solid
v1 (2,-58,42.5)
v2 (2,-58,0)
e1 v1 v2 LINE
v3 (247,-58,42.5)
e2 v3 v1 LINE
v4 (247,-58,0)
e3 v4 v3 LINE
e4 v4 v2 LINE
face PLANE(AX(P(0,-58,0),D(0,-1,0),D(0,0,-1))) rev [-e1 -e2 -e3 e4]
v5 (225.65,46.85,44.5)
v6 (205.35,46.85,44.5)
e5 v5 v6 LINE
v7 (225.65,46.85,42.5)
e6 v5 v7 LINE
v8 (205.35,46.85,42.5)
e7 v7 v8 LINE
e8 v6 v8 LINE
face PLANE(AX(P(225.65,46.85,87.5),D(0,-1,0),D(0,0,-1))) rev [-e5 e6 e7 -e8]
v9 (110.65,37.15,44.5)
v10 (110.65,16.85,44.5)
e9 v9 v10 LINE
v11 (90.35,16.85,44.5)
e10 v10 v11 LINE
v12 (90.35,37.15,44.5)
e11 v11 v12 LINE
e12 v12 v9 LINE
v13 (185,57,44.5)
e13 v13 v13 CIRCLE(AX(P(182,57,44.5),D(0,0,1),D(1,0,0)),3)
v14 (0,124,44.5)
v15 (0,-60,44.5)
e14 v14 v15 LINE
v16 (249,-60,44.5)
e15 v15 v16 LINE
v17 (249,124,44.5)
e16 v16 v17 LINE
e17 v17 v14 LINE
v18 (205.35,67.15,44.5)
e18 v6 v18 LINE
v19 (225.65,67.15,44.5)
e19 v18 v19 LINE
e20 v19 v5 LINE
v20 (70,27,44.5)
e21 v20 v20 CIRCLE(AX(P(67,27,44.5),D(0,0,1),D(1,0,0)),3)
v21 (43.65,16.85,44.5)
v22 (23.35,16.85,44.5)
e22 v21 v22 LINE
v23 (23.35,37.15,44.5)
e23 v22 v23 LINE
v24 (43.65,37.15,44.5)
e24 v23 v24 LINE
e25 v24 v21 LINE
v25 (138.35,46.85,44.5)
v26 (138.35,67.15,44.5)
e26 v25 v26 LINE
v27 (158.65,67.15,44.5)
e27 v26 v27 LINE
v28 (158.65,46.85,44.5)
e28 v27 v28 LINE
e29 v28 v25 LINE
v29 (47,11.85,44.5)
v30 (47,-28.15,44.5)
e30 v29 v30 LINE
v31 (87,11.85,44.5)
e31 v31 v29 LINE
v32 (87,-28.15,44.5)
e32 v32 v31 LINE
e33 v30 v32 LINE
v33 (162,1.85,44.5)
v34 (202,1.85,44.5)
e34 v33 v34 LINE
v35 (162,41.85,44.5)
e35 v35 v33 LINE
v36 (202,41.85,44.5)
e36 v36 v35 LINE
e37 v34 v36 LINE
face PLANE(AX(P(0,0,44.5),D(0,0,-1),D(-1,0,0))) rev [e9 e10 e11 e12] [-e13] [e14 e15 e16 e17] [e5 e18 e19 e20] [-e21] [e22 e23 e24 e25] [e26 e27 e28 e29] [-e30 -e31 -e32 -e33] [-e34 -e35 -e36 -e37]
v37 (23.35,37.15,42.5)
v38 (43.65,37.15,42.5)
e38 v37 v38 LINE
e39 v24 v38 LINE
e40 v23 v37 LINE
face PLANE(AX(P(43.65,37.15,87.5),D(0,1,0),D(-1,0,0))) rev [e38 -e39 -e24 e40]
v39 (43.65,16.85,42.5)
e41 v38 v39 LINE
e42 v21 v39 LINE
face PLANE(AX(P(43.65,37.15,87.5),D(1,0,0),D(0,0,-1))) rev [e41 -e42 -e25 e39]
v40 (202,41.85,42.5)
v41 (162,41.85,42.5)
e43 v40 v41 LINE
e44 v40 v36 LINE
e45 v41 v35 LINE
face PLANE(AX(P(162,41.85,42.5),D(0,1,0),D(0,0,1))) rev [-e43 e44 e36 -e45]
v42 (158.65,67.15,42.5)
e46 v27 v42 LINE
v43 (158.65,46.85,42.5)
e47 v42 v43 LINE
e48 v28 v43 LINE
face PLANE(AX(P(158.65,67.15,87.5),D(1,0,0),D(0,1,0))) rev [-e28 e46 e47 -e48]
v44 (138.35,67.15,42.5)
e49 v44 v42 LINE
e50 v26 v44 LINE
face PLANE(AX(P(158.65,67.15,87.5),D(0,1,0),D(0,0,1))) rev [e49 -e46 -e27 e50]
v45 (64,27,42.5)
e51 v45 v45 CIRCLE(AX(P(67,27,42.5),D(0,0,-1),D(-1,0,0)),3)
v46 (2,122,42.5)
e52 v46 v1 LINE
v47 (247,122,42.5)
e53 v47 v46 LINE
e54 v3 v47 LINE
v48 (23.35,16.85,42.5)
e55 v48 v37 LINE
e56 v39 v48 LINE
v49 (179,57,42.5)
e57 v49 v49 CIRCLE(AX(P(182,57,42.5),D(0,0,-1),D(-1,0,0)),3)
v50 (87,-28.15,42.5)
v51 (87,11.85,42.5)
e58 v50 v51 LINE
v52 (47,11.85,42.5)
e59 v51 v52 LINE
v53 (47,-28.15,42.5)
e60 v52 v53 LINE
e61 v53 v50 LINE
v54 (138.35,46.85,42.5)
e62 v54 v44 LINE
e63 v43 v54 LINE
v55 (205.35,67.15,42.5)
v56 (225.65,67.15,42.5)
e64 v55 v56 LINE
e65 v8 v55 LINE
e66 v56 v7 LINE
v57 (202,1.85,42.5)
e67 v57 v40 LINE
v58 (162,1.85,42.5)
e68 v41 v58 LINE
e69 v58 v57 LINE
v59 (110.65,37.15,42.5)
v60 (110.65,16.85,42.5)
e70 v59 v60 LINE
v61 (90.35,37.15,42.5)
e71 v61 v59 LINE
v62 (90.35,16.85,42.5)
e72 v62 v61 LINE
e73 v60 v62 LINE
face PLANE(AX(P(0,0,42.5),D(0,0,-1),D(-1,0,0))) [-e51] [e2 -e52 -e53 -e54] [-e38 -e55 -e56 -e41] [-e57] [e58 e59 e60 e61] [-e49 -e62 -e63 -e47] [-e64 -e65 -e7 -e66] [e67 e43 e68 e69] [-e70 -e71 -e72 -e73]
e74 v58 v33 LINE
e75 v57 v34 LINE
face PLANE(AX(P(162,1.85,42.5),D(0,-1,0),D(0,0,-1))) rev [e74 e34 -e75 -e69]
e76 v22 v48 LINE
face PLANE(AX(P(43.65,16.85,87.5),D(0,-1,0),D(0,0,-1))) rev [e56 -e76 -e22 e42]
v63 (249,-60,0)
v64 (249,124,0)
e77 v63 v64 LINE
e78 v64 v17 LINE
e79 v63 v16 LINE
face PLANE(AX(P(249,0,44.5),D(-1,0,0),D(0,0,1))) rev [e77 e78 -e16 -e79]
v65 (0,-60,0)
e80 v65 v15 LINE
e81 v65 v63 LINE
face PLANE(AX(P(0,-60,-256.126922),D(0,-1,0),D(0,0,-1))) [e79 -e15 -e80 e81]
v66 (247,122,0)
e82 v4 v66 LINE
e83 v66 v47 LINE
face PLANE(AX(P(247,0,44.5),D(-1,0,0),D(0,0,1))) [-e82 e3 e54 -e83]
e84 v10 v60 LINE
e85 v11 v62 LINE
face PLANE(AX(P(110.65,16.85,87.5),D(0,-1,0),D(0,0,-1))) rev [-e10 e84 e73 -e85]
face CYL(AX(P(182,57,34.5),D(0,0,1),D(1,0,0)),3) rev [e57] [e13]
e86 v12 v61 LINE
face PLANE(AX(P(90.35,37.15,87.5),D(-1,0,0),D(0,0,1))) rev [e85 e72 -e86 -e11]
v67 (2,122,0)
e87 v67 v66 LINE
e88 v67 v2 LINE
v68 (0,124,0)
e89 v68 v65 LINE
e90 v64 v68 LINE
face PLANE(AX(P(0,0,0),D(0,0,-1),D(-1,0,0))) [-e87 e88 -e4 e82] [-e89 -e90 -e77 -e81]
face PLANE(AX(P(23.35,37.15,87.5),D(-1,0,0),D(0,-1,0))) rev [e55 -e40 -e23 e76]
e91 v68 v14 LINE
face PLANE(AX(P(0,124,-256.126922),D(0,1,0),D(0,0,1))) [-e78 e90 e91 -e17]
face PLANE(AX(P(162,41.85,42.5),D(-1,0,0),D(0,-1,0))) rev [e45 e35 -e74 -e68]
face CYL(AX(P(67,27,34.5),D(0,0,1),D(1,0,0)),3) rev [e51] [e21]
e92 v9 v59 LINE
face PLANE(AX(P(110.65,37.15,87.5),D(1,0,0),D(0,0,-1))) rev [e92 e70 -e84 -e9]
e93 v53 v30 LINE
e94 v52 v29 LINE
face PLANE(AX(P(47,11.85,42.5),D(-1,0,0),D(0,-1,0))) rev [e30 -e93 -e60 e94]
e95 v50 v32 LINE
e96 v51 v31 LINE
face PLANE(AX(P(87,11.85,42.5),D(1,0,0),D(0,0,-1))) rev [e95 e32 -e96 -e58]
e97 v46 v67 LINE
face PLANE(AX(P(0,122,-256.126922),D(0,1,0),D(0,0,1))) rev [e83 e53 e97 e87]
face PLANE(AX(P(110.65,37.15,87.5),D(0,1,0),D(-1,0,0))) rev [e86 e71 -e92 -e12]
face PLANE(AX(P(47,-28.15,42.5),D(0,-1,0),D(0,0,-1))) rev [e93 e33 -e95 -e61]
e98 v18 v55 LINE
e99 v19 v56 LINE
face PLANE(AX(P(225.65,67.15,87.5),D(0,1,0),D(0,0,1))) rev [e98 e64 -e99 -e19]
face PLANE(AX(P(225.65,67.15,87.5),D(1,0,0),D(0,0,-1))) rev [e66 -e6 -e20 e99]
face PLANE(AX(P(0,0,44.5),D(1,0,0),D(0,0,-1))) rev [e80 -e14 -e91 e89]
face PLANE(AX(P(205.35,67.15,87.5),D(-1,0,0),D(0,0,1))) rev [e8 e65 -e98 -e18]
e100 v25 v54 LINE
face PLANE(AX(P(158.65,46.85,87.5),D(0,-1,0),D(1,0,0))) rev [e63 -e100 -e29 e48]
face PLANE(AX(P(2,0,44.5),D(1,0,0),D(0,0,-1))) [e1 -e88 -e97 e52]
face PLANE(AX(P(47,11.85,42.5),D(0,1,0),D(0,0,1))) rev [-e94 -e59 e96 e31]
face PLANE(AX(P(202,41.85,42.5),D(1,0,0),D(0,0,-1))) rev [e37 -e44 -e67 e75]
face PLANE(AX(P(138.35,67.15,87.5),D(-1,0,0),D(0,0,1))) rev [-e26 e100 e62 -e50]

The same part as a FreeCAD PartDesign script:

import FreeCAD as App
import Part
import Sketcher

V = App.Vector
Q = App.Units.Quantity


def faces_at(feature, points):
    """Names of the faces that lie closest to the given points."""
    faces = feature.Shape.Faces
    near = lambda p: min(range(len(faces)), key=lambda i: faces[i].distToShape(Part.Vertex(*p))[0])
    return sorted({f"Face{near(p) + 1}" for p in points})

doc = App.newDocument("Part")
body = doc.addObject("PartDesign::Body", "Body")

sketch1 = body.newObject("Sketcher::SketchObject", "Sketch")
sketch1.AttachmentSupport = (doc.getObject("XY_Plane"), [""])
sketch1.MapMode = "FlatFace"
sketch1.addGeometry([
    Part.LineSegment(V(0, 84, 0), V(0, 0, 0)),
    Part.LineSegment(V(0, 0, 0), V(249, 0, 0)),
    Part.LineSegment(V(249, 0, 0), V(249, 84, 0)),
    Part.LineSegment(V(249, 84, 0), V(0, 84, 0)),
], False)
sketch1.addConstraint([
    Sketcher.Constraint("Coincident", 0, 2, 1, 1),
    Sketcher.Constraint("Coincident", 1, 2, 2, 1),
    Sketcher.Constraint("Coincident", 2, 2, 3, 1),
    Sketcher.Constraint("Coincident", 3, 2, 0, 1),
    Sketcher.Constraint("Vertical", 0),
    Sketcher.Constraint("Horizontal", 1),
    Sketcher.Constraint("Vertical", 2),
    Sketcher.Constraint("Horizontal", 3),
    Sketcher.Constraint("Coincident", 0, 2, -1, 1),
    Sketcher.Constraint("DistanceX", 1, 1, 1, 2, Q("249 mm")),
    Sketcher.Constraint("DistanceY", 0, 2, 0, 1, Q("84 mm")),
])
pad1 = body.newObject("PartDesign::Pad", "Pad")
pad1.Profile = sketch1
pad1.Length = 44.5
doc.recompute()

thickness = body.newObject("PartDesign::Thickness", "Thickness")
thickness.Base = (pad1, faces_at(pad1, [(124.5, 42, 0)]))
thickness.Value = 2
thickness.Reversed = True
thickness.Join = "Intersection"

sketch2 = body.newObject("Sketcher::SketchObject", "Sketch001")
sketch2.AttachmentSupport = (doc.getObject("XY_Plane"), [""])
sketch2.MapMode = "FlatFace"
sketch2.AttachmentOffset = App.Placement(V(0, 0, 42.5), App.Rotation())
sketch2.addGeometry([
    Part.LineSegment(V(110.65, 37.15, 0), V(110.65, 16.85, 0)),
    Part.LineSegment(V(110.65, 16.85, 0), V(90.35, 16.85, 0)),
    Part.LineSegment(V(90.35, 16.85, 0), V(90.35, 37.15, 0)),
    Part.LineSegment(V(90.35, 37.15, 0), V(110.65, 37.15, 0)),
    Part.LineSegment(V(43.65, 37.15, 0), V(43.65, 16.85, 0)),
    Part.LineSegment(V(43.65, 16.85, 0), V(23.35, 16.85, 0)),
    Part.LineSegment(V(23.35, 16.85, 0), V(23.35, 37.15, 0)),
    Part.LineSegment(V(23.35, 37.15, 0), V(43.65, 37.15, 0)),
    Part.LineSegment(V(225.65, 67.15, 0), V(225.65, 46.85, 0)),
    Part.LineSegment(V(225.65, 46.85, 0), V(205.35, 46.85, 0)),
    Part.LineSegment(V(205.35, 46.85, 0), V(205.35, 67.15, 0)),
    Part.LineSegment(V(205.35, 67.15, 0), V(225.65, 67.15, 0)),
    Part.LineSegment(V(158.65, 67.15, 0), V(158.65, 46.85, 0)),
    Part.LineSegment(V(158.65, 46.85, 0), V(138.35, 46.85, 0)),
    Part.LineSegment(V(138.35, 46.85, 0), V(138.35, 67.15, 0)),
    Part.LineSegment(V(138.35, 67.15, 0), V(158.65, 67.15, 0)),
], False)
sketch2.addConstraint([
    Sketcher.Constraint("Coincident", 0, 2, 1, 1),
    Sketcher.Constraint("Coincident", 1, 2, 2, 1),
    Sketcher.Constraint("Coincident", 2, 2, 3, 1),
    Sketcher.Constraint("Coincident", 3, 2, 0, 1),
    Sketcher.Constraint("Coincident", 4, 2, 5, 1),
    Sketcher.Constraint("Coincident", 5, 2, 6, 1),
    Sketcher.Constraint("Coincident", 6, 2, 7, 1),
    Sketcher.Constraint("Coincident", 7, 2, 4, 1),
    Sketcher.Constraint("Coincident", 8, 2, 9, 1),
    Sketcher.Constraint("Coincident", 9, 2, 10, 1),
    Sketcher.Constraint("Coincident", 10, 2, 11, 1),
    Sketcher.Constraint("Coincident", 11, 2, 8, 1),
    Sketcher.Constraint("Coincident", 12, 2, 13, 1),
    Sketcher.Constraint("Coincident", 13, 2, 14, 1),
    Sketcher.Constraint("Coincident", 14, 2, 15, 1),
    Sketcher.Constraint("Coincident", 15, 2, 12, 1),
    Sketcher.Constraint("Vertical", 0),
    Sketcher.Constraint("Horizontal", 1),
    Sketcher.Constraint("Vertical", 2),
    Sketcher.Constraint("Horizontal", 3),
    Sketcher.Constraint("Vertical", 4),
    Sketcher.Constraint("Horizontal", 5),
    Sketcher.Constraint("Vertical", 6),
    Sketcher.Constraint("Horizontal", 7),
    Sketcher.Constraint("Vertical", 8),
    Sketcher.Constraint("Horizontal", 9),
    Sketcher.Constraint("Vertical", 10),
    Sketcher.Constraint("Horizontal", 11),
    Sketcher.Constraint("Vertical", 12),
    Sketcher.Constraint("Horizontal", 13),
    Sketcher.Constraint("Vertical", 14),
    Sketcher.Constraint("Horizontal", 15),
    Sketcher.Constraint("Horizontal", 1, 2, 4, 2),
    Sketcher.Constraint("Horizontal", 3, 2, 6, 2),
    Sketcher.Constraint("Horizontal", 9, 2, 12, 2),
    Sketcher.Constraint("Horizontal", 11, 2, 14, 2),
    Sketcher.Constraint("Equal", 3, 5),
    Sketcher.Constraint("Equal", 7, 9),
    Sketcher.Constraint("Equal", 11, 13),
    Sketcher.Constraint("Equal", 15, 0),
    Sketcher.Constraint("Equal", 6, 8),
    Sketcher.Constraint("DistanceX", 1, 2, 1, 1, Q("20.3 mm")),
    Sketcher.Constraint("DistanceX", 4, 2, 0, 2, Q("67 mm")),
    Sketcher.Constraint("DistanceX", 3, 2, 8, 2, Q("115 mm")),
    Sketcher.Constraint("DistanceY", 0, 2, 8, 2, Q("30 mm")),
    Sketcher.Constraint("DistanceX", 3, 2, 12, 2, Q("48 mm")),
    Sketcher.Constraint("DistanceX", -1, 1, 0, 2, Q("110.65 mm")),
    Sketcher.Constraint("DistanceY", -1, 1, 0, 2, Q("16.85 mm")),
])
pocket1 = body.newObject("PartDesign::Pocket", "Pocket")
pocket1.Profile = sketch2
pocket1.Length = 45
pocket1.Reversed = True

sketch3 = body.newObject("Sketcher::SketchObject", "Sketch002")
sketch3.AttachmentSupport = (doc.getObject("XY_Plane"), [""])
sketch3.MapMode = "FlatFace"
sketch3.AttachmentOffset = App.Placement(V(0, 0, 44.5), App.Rotation())
sketch3.addGeometry([
    Part.Circle(V(67, 27, 0), V(0, 0, 1), 3),
    Part.Circle(V(182, 57, 0), V(0, 0, 1), 3),
], False)
sketch3.addConstraint([
    Sketcher.Constraint("Equal", 0, 1),
    Sketcher.Constraint("Diameter", 0, Q("6 mm")),
    Sketcher.Constraint("DistanceX", -1, 1, 0, 3, Q("67 mm")),
    Sketcher.Constraint("DistanceY", -1, 1, 0, 3, Q("27 mm")),
    Sketcher.Constraint("DistanceX", -1, 1, 1, 3, Q("182 mm")),
    Sketcher.Constraint("DistanceY", -1, 1, 1, 3, Q("57 mm")),
])
pocket2 = body.newObject("PartDesign::Pocket", "Pocket001")
pocket2.Profile = sketch3
pocket2.Length = 10

sketch4 = body.newObject("Sketcher::SketchObject", "Sketch003")
sketch4.AttachmentSupport = (doc.getObject("XY_Plane"), [""])
sketch4.MapMode = "FlatFace"
sketch4.AttachmentOffset = App.Placement(V(0, 0, 44.5), App.Rotation())
sketch4.addGeometry([
    Part.LineSegment(V(0, 124, 0), V(0, 84, 0)),
    Part.LineSegment(V(0, 84, 0), V(249, 84, 0)),
    Part.LineSegment(V(249, 84, 0), V(249, 124, 0)),
    Part.LineSegment(V(249, 124, 0), V(0, 124, 0)),
    Part.LineSegment(V(0, 0, 0), V(0, -60, 0)),
    Part.LineSegment(V(0, -60, 0), V(249, -60, 0)),
    Part.LineSegment(V(249, -60, 0), V(249, 0, 0)),
    Part.LineSegment(V(249, 0, 0), V(0, 0, 0)),
], False)
sketch4.addConstraint([
    Sketcher.Constraint("Coincident", 0, 2, 1, 1),
    Sketcher.Constraint("Coincident", 1, 2, 2, 1),
    Sketcher.Constraint("Coincident", 2, 2, 3, 1),
    Sketcher.Constraint("Coincident", 3, 2, 0, 1),
    Sketcher.Constraint("Coincident", 4, 2, 5, 1),
    Sketcher.Constraint("Coincident", 5, 2, 6, 1),
    Sketcher.Constraint("Coincident", 6, 2, 7, 1),
    Sketcher.Constraint("Coincident", 7, 2, 4, 1),
    Sketcher.Constraint("Vertical", 0),
    Sketcher.Constraint("Horizontal", 1),
    Sketcher.Constraint("Vertical", 2),
    Sketcher.Constraint("Horizontal", 3),
    Sketcher.Constraint("Vertical", 4),
    Sketcher.Constraint("Horizontal", 5),
    Sketcher.Constraint("Vertical", 6),
    Sketcher.Constraint("Horizontal", 7),
    Sketcher.Constraint("Coincident", 7, 2, -1, 1),
    Sketcher.Constraint("PointOnObject", 0, 2, -2),
    Sketcher.Constraint("Vertical", 2, 2, 5, 2),
    Sketcher.Constraint("DistanceX", 1, 1, 1, 2, Q("249 mm")),
    Sketcher.Constraint("DistanceY", 0, 2, 0, 1, Q("40 mm")),
    Sketcher.Constraint("DistanceY", 4, 2, 4, 1, Q("60 mm")),
    Sketcher.Constraint("DistanceY", -1, 1, 0, 2, Q("84 mm")),
])
pad2 = body.newObject("PartDesign::Pad", "Pad001")
pad2.Profile = sketch4
pad2.Length = 44.5
pad2.Reversed = True

sketch5 = body.newObject("Sketcher::SketchObject", "Sketch004")
sketch5.AttachmentSupport = (doc.getObject("XZ_Plane"), [""])
sketch5.MapMode = "FlatFace"
sketch5.AttachmentOffset = App.Placement(V(0, 0, 58), App.Rotation())
sketch5.addGeometry([
    Part.LineSegment(V(247, 2, 0), V(247, 42.5, 0)),
    Part.LineSegment(V(247, 42.5, 0), V(2, 42.5, 0)),
    Part.LineSegment(V(2, 42.5, 0), V(2, 2, 0)),
    Part.LineSegment(V(2, 2, 0), V(247, 2, 0)),
], False)
sketch5.addConstraint([
    Sketcher.Constraint("Coincident", 0, 2, 1, 1),
    Sketcher.Constraint("Coincident", 1, 2, 2, 1),
    Sketcher.Constraint("Coincident", 2, 2, 3, 1),
    Sketcher.Constraint("Coincident", 3, 2, 0, 1),
    Sketcher.Constraint("Vertical", 0),
    Sketcher.Constraint("Horizontal", 1),
    Sketcher.Constraint("Vertical", 2),
    Sketcher.Constraint("Horizontal", 3),
    Sketcher.Constraint("DistanceX", 1, 2, 1, 1, Q("245 mm")),
    Sketcher.Constraint("DistanceY", 0, 1, 0, 2, Q("40.5 mm")),
    Sketcher.Constraint("DistanceX", -1, 1, 0, 2, Q("247 mm")),
    Sketcher.Constraint("DistanceY", -1, 1, 2, 2, Q("2 mm")),
])
pocket3 = body.newObject("PartDesign::Pocket", "Pocket002")
pocket3.Profile = sketch5
pocket3.Length = 180

sketch6 = body.newObject("Sketcher::SketchObject", "Sketch005")
sketch6.AttachmentSupport = (doc.getObject("XY_Plane"), [""])
sketch6.MapMode = "FlatFace"
sketch6.addGeometry([
    Part.LineSegment(V(247, 122, 0), V(247, -58, 0)),
    Part.LineSegment(V(247, -58, 0), V(2, -58, 0)),
    Part.LineSegment(V(2, -58, 0), V(2, 122, 0)),
    Part.LineSegment(V(2, 122, 0), V(247, 122, 0)),
], False)
sketch6.addConstraint([
    Sketcher.Constraint("Coincident", 0, 2, 1, 1),
    Sketcher.Constraint("Coincident", 1, 2, 2, 1),
    Sketcher.Constraint("Coincident", 2, 2, 3, 1),
    Sketcher.Constraint("Coincident", 3, 2, 0, 1),
    Sketcher.Constraint("Vertical", 0),
    Sketcher.Constraint("Horizontal", 1),
    Sketcher.Constraint("Vertical", 2),
    Sketcher.Constraint("Horizontal", 3),
    Sketcher.Constraint("DistanceX", 1, 2, 1, 1, Q("245 mm")),
    Sketcher.Constraint("DistanceY", 0, 2, 0, 1, Q("180 mm")),
    Sketcher.Constraint("DistanceX", -1, 1, 0, 2, Q("247 mm")),
    Sketcher.Constraint("DistanceY", 0, 2, -1, 1, Q("58 mm")),
])
pocket4 = body.newObject("PartDesign::Pocket", "Pocket003")
pocket4.Profile = sketch6
pocket4.Length = 42.5
pocket4.Reversed = True

sketch7 = body.newObject("Sketcher::SketchObject", "Sketch006")
sketch7.AttachmentSupport = (doc.getObject("XY_Plane"), [""])
sketch7.MapMode = "FlatFace"
sketch7.AttachmentOffset = App.Placement(V(0, 0, 44.5), App.Rotation())
sketch7.addGeometry([
    Part.LineSegment(V(47, 11.85, 0), V(47, -28.15, 0)),
    Part.LineSegment(V(47, -28.15, 0), V(87, -28.15, 0)),
    Part.LineSegment(V(87, -28.15, 0), V(87, 11.85, 0)),
    Part.LineSegment(V(87, 11.85, 0), V(47, 11.85, 0)),
    Part.LineSegment(V(162, 41.85, 0), V(162, 1.85, 0)),
    Part.LineSegment(V(162, 1.85, 0), V(202, 1.85, 0)),
    Part.LineSegment(V(202, 1.85, 0), V(202, 41.85, 0)),
    Part.LineSegment(V(202, 41.85, 0), V(162, 41.85, 0)),
], False)
sketch7.addConstraint([
    Sketcher.Constraint("Coincident", 0, 2, 1, 1),
    Sketcher.Constraint("Coincident", 1, 2, 2, 1),
    Sketcher.Constraint("Coincident", 2, 2, 3, 1),
    Sketcher.Constraint("Coincident", 3, 2, 0, 1),
    Sketcher.Constraint("Coincident", 4, 2, 5, 1),
    Sketcher.Constraint("Coincident", 5, 2, 6, 1),
    Sketcher.Constraint("Coincident", 6, 2, 7, 1),
    Sketcher.Constraint("Coincident", 7, 2, 4, 1),
    Sketcher.Constraint("Vertical", 0),
    Sketcher.Constraint("Horizontal", 1),
    Sketcher.Constraint("Vertical", 2),
    Sketcher.Constraint("Horizontal", 3),
    Sketcher.Constraint("Vertical", 4),
    Sketcher.Constraint("Horizontal", 5),
    Sketcher.Constraint("Vertical", 6),
    Sketcher.Constraint("Horizontal", 7),
    Sketcher.Constraint("Equal", 3, 5),
    Sketcher.Constraint("Equal", 7, 0),
    Sketcher.Constraint("Equal", 2, 4),
    Sketcher.Constraint("DistanceX", 1, 1, 1, 2, Q("40 mm")),
    Sketcher.Constraint("DistanceX", -1, 1, 0, 2, Q("47 mm")),
    Sketcher.Constraint("DistanceX", -1, 1, 4, 2, Q("162 mm")),
    Sketcher.Constraint("DistanceY", 4, 2, 2, 2, Q("10 mm")),
    Sketcher.Constraint("DistanceY", 0, 2, -1, 1, Q("28.15 mm")),
])
pocket5 = body.newObject("PartDesign::Pocket", "Pocket004")
pocket5.Profile = sketch7
pocket5.Length = 2

doc.recompute()
